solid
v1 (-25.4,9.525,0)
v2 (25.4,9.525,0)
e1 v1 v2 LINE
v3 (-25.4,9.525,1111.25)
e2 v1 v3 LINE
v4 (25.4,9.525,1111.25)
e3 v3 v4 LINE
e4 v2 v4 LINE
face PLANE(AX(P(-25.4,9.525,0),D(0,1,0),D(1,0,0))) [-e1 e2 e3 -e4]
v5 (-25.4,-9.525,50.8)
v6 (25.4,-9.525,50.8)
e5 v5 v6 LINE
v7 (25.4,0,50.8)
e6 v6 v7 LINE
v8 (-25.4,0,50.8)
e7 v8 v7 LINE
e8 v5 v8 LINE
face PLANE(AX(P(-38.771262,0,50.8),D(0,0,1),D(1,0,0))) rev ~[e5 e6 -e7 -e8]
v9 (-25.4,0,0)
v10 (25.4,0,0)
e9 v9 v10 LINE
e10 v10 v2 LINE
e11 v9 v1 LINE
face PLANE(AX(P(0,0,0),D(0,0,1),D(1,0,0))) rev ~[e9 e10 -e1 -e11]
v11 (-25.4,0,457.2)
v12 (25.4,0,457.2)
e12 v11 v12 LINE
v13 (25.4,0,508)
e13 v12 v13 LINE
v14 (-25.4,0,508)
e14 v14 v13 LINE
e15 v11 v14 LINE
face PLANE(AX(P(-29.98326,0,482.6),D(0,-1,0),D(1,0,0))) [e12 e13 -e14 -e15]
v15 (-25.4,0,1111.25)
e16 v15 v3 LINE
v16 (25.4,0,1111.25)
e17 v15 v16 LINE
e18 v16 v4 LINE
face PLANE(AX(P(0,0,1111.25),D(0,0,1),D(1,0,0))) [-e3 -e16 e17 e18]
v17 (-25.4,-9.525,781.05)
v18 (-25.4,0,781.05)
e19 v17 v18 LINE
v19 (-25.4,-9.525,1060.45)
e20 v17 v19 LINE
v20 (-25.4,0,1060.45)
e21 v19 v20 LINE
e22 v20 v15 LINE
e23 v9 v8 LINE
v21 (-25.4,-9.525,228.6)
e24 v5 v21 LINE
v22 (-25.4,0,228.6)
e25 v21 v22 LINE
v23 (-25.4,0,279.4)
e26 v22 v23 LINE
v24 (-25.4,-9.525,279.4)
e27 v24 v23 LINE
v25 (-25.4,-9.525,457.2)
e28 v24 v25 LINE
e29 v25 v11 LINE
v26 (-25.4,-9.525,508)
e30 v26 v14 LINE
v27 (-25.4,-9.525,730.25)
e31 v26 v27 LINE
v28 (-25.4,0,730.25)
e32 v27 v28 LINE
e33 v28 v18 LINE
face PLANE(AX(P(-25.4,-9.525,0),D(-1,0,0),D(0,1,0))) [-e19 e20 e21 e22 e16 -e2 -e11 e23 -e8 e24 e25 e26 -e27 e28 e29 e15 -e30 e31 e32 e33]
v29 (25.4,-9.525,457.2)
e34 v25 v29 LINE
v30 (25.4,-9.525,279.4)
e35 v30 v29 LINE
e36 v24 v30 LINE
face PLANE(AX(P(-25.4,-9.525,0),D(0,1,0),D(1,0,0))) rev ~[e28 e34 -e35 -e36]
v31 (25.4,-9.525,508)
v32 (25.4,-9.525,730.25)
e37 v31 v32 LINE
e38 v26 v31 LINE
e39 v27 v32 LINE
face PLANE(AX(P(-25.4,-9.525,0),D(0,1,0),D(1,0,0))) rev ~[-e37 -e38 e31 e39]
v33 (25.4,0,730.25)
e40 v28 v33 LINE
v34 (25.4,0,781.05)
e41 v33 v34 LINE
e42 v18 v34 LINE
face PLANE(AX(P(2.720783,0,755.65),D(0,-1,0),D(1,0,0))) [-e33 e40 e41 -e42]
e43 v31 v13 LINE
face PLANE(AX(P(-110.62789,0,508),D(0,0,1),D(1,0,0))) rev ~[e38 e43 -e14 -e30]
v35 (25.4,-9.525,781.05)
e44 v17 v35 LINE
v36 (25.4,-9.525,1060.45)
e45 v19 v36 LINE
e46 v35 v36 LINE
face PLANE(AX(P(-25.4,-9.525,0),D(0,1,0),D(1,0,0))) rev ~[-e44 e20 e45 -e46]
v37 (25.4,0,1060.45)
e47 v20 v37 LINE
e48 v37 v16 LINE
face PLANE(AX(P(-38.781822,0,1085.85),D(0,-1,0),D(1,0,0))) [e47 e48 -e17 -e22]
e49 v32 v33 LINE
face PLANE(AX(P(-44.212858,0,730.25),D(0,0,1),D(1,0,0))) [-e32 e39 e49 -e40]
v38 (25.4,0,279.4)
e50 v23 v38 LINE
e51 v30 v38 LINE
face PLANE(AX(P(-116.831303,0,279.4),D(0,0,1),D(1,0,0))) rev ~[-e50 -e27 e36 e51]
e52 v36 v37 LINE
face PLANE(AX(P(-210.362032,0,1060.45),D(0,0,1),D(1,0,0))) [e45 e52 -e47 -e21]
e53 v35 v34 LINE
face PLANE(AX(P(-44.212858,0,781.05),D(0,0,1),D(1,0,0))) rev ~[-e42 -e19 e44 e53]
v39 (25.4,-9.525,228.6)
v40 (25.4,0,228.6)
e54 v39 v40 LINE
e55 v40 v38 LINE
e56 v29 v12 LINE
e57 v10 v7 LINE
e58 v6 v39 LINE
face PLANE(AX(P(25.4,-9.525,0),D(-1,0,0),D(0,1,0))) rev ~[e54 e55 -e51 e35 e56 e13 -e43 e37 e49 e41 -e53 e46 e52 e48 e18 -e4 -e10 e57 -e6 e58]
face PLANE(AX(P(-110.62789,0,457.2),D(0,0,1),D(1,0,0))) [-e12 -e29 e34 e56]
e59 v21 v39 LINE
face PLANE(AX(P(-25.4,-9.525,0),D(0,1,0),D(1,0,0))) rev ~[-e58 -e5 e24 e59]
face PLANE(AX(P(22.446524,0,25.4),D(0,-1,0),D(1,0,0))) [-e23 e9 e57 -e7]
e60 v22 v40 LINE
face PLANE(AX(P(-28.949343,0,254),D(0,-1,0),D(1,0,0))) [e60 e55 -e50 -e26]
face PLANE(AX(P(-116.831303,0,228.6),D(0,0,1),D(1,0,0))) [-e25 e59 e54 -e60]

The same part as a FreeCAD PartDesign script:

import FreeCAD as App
import Part
import Sketcher
Q = App.Units.Quantity

doc = App.newDocument("Part")
body = doc.addObject("PartDesign::Body", "Body")

# Sketch on XY plane
sketch1 = doc.addObject("Sketcher::SketchObject", "Sketch")
body.addObject(sketch1)
sketch1.AttachmentSupport = (doc.XY_Plane, [""])
sketch1.MapMode = "FlatFace"
sketch1.addGeometry(Part.LineSegment(App.Vector(-25.4, 9.525, 0), App.Vector(-25.4, -9.525, 0)), False)
sketch1.addGeometry(Part.LineSegment(App.Vector(-25.4, -9.525, 0), App.Vector(25.4, -9.525, 0)), False)
sketch1.addGeometry(Part.LineSegment(App.Vector(25.4, -9.525, 0), App.Vector(25.4, 9.525, 0)), False)
sketch1.addGeometry(Part.LineSegment(App.Vector(25.4, 9.525, 0), App.Vector(-25.4, 9.525, 0)), False)
sketch1.addConstraint(Sketcher.Constraint("Coincident", 0, 2, 1, 1))
sketch1.addConstraint(Sketcher.Constraint("Coincident", 1, 2, 2, 1))
sketch1.addConstraint(Sketcher.Constraint("Coincident", 2, 2, 3, 1))
sketch1.addConstraint(Sketcher.Constraint("Coincident", 3, 2, 0, 1))
sketch1.addConstraint(Sketcher.Constraint("Vertical", 0))
sketch1.addConstraint(Sketcher.Constraint("Horizontal", 1))
sketch1.addConstraint(Sketcher.Constraint("Vertical", 2))
sketch1.addConstraint(Sketcher.Constraint("Horizontal", 3))
sketch1.addConstraint(Sketcher.Constraint("Symmetric", 0, 2, 2, 2, -1, 1))
sketch1.addConstraint(Sketcher.Constraint("DistanceX", 1, 1, 1, 2, Q("2 in")))
sketch1.addConstraint(Sketcher.Constraint("DistanceY", 0, 2, 0, 1, Q("0.75 in")))
pad1 = doc.addObject("PartDesign::Pad", "Pad")
body.addObject(pad1)
pad1.Profile = sketch1
pad1.Length = Q("43.75 in")

# Sketch on XZ plane
sketch2 = doc.addObject("Sketcher::SketchObject", "Sketch001")
body.addObject(sketch2)
sketch2.AttachmentSupport = (doc.XZ_Plane, [""])
sketch2.MapMode = "FlatFace"
sketch2.addGeometry(Part.LineSegment(App.Vector(-38.771262, 50.8, 0), App.Vector(-38.771262, 0, 0)), False)
sketch2.addGeometry(Part.LineSegment(App.Vector(-38.771262, 0, 0), App.Vector(83.66431, 0, 0)), False)
sketch2.addGeometry(Part.LineSegment(App.Vector(83.66431, 0, 0), App.Vector(83.66431, 50.8, 0)), False)
sketch2.addGeometry(Part.LineSegment(App.Vector(83.66431, 50.8, 0), App.Vector(-38.771262, 50.8, 0)), False)
sketch2.addGeometry(Part.LineSegment(App.Vector(-44.212858, 781.05, 0), App.Vector(-44.212858, 730.25, 0)), False)
sketch2.addGeometry(Part.LineSegment(App.Vector(-44.212858, 730.25, 0), App.Vector(49.654424, 730.25, 0)), False)
sketch2.addGeometry(Part.LineSegment(App.Vector(49.654424, 730.25, 0), App.Vector(49.654424, 781.05, 0)), False)
sketch2.addGeometry(Part.LineSegment(App.Vector(49.654424, 781.05, 0), App.Vector(-44.212858, 781.05, 0)), False)
sketch2.addGeometry(Part.LineSegment(App.Vector(-210.362032, 1111.25, 0), App.Vector(-210.362032, 1060.45, 0)), False)
sketch2.addGeometry(Part.LineSegment(App.Vector(-210.362032, 1060.45, 0), App.Vector(132.798388, 1060.45, 0)), False)
sketch2.addGeometry(Part.LineSegment(App.Vector(132.798388, 1060.45, 0), App.Vector(132.798388, 1111.25, 0)), False)
sketch2.addGeometry(Part.LineSegment(App.Vector(132.798388, 1111.25, 0), App.Vector(-210.362032, 1111.25, 0)), False)
sketch2.addGeometry(Part.LineSegment(App.Vector(-116.831303, 279.4, 0), App.Vector(-116.831303, 228.6, 0)), False)
sketch2.addGeometry(Part.LineSegment(App.Vector(-116.831303, 228.6, 0), App.Vector(58.932617, 228.6, 0)), False)
sketch2.addGeometry(Part.LineSegment(App.Vector(58.932617, 228.6, 0), App.Vector(58.932617, 279.4, 0)), False)
sketch2.addGeometry(Part.LineSegment(App.Vector(58.932617, 279.4, 0), App.Vector(-116.831303, 279.4, 0)), False)
sketch2.addGeometry(Part.LineSegment(App.Vector(-110.62789, 508, 0), App.Vector(-110.62789, 457.2, 0)), False)
sketch2.addGeometry(Part.LineSegment(App.Vector(-110.62789, 457.2, 0), App.Vector(50.66137, 457.2, 0)), False)
sketch2.addGeometry(Part.LineSegment(App.Vector(50.66137, 457.2, 0), App.Vector(50.66137, 508, 0)), False)
sketch2.addGeometry(Part.LineSegment(App.Vector(50.66137, 508, 0), App.Vector(-110.62789, 508, 0)), False)
sketch2.addConstraint(Sketcher.Constraint("Coincident", 0, 2, 1, 1))
sketch2.addConstraint(Sketcher.Constraint("Coincident", 1, 2, 2, 1))
sketch2.addConstraint(Sketcher.Constraint("Coincident", 2, 2, 3, 1))
sketch2.addConstraint(Sketcher.Constraint("Coincident", 3, 2, 0, 1))
sketch2.addConstraint(Sketcher.Constraint("Coincident", 4, 2, 5, 1))
sketch2.addConstraint(Sketcher.Constraint("Coincident", 5, 2, 6, 1))
sketch2.addConstraint(Sketcher.Constraint("Coincident", 6, 2, 7, 1))
sketch2.addConstraint(Sketcher.Constraint("Coincident", 7, 2, 4, 1))
sketch2.addConstraint(Sketcher.Constraint("Coincident", 8, 2, 9, 1))
sketch2.addConstraint(Sketcher.Constraint("Coincident", 9, 2, 10, 1))
sketch2.addConstraint(Sketcher.Constraint("Coincident", 10, 2, 11, 1))
sketch2.addConstraint(Sketcher.Constraint("Coincident", 11, 2, 8, 1))
sketch2.addConstraint(Sketcher.Constraint("Coincident", 12, 2, 13, 1))
sketch2.addConstraint(Sketcher.Constraint("Coincident", 13, 2, 14, 1))
sketch2.addConstraint(Sketcher.Constraint("Coincident", 14, 2, 15, 1))
sketch2.addConstraint(Sketcher.Constraint("Coincident", 15, 2, 12, 1))
sketch2.addConstraint(Sketcher.Constraint("Coincident", 16, 2, 17, 1))
sketch2.addConstraint(Sketcher.Constraint("Coincident", 17, 2, 18, 1))
sketch2.addConstraint(Sketcher.Constraint("Coincident", 18, 2, 19, 1))
sketch2.addConstraint(Sketcher.Constraint("Coincident", 19, 2, 16, 1))
sketch2.addConstraint(Sketcher.Constraint("Vertical", 0))
sketch2.addConstraint(Sketcher.Constraint("Horizontal", 1))
sketch2.addConstraint(Sketcher.Constraint("Vertical", 2))
sketch2.addConstraint(Sketcher.Constraint("Horizontal", 3))
sketch2.addConstraint(Sketcher.Constraint("Vertical", 4))
sketch2.addConstraint(Sketcher.Constraint("Horizontal", 5))
sketch2.addConstraint(Sketcher.Constraint("Vertical", 6))
sketch2.addConstraint(Sketcher.Constraint("Horizontal", 7))
sketch2.addConstraint(Sketcher.Constraint("Vertical", 8))
sketch2.addConstraint(Sketcher.Constraint("Horizontal", 9))
sketch2.addConstraint(Sketcher.Constraint("Vertical", 10))
sketch2.addConstraint(Sketcher.Constraint("Horizontal", 11))
sketch2.addConstraint(Sketcher.Constraint("Vertical", 12))
sketch2.addConstraint(Sketcher.Constraint("Horizontal", 13))
sketch2.addConstraint(Sketcher.Constraint("Vertical", 14))
sketch2.addConstraint(Sketcher.Constraint("Horizontal", 15))
sketch2.addConstraint(Sketcher.Constraint("Vertical", 16))
sketch2.addConstraint(Sketcher.Constraint("Horizontal", 17))
sketch2.addConstraint(Sketcher.Constraint("Vertical", 18))
sketch2.addConstraint(Sketcher.Constraint("Horizontal", 19))
sketch2.addConstraint(Sketcher.Constraint("PointOnObject", 0, 2, -1))
sketch2.addConstraint(Sketcher.Constraint("Equal", 2, 4))
sketch2.addConstraint(Sketcher.Constraint("Equal", 6, 8))
sketch2.addConstraint(Sketcher.Constraint("Equal", 10, 12))
sketch2.addConstraint(Sketcher.Constraint("Equal", 14, 16))
sketch2.addConstraint(Sketcher.Constraint("DistanceY", 0, 2, 0, 1, Q("2 in")))
sketch2.addConstraint(Sketcher.Constraint("DistanceY", -1, 1, 12, 2, Q("9 in")))
sketch2.addConstraint(Sketcher.Constraint("DistanceY", -1, 1, 16, 2, Q("18 in")))
sketch2.addConstraint(Sketcher.Constraint("DistanceY", 7, 2, 8, 2, Q("11 in")))
sketch2.addConstraint(Sketcher.Constraint("DistanceY", -1, 1, 4, 2, Q("28.75 in")))
sketch2.addConstraint(Sketcher.Constraint("DistanceX", 5, 1, 5, 2, 93.867282))
sketch2.addConstraint(Sketcher.Constraint("DistanceX", 9, 1, 9, 2, 343.160421))
sketch2.addConstraint(Sketcher.Constraint("DistanceX", 13, 1, 13, 2, 175.76392))
sketch2.addConstraint(Sketcher.Constraint("DistanceX", 17, 1, 17, 2, 161.28926))
sketch2.addConstraint(Sketcher.Constraint("DistanceX", 1, 1, 1, 2, 122.435573))
sketch2.addConstraint(Sketcher.Constraint("DistanceX", -1, 1, 1, 2, 83.66431))
sketch2.addConstraint(Sketcher.Constraint("DistanceX", -1, 1, 9, 2, 132.798388))
sketch2.addConstraint(Sketcher.Constraint("DistanceX", 16, 2, -1, 1, 110.62789))
sketch2.addConstraint(Sketcher.Constraint("DistanceX", 4, 2, 2, 2, 127.877168))
sketch2.addConstraint(Sketcher.Constraint("DistanceX", 12, 2, 3, 2, 78.060041))
pocket1 = doc.addObject("PartDesign::Pocket", "Pocket")
body.addObject(pocket1)
pocket1.Profile = sketch2
pocket1.Length = Q("1 in")
pocket1.Reversed = True

# Sketch on XZ plane
sketch3 = doc.addObject("Sketcher::SketchObject", "Sketch002")
body.addObject(sketch3)
sketch3.AttachmentSupport = (doc.XZ_Plane, [""])
sketch3.MapMode = "FlatFace"
sketch3.addGeometry(Part.Circle(App.Vector(15.875, 254, 0), App.Vector(0, 0, 1), 4.7625), False)
sketch3.addGeometry(Part.Circle(App.Vector(15.875, 482.6, 0), App.Vector(0, 0, 1), 4.7625), False)
sketch3.addConstraint(Sketcher.Constraint("Equal", 0, 1))
sketch3.addConstraint(Sketcher.Constraint("Vertical", 0, 3, 1, 3))
sketch3.addConstraint(Sketcher.Constraint("Diameter", 0, Q("0.375 in")))
sketch3.addConstraint(Sketcher.Constraint("DistanceY", -1, 1, 0, 3, Q("10 in")))
sketch3.addConstraint(Sketcher.Constraint("DistanceY", -1, 1, 1, 3, Q("19 in")))
sketch3.addConstraint(Sketcher.Constraint("DistanceX", -1, 1, 0, 3, Q("0.625 in")))
pocket2 = doc.addObject("PartDesign::Pocket", "Pocket001")
body.addObject(pocket2)
pocket2.Profile = sketch3
pocket2.Length = Q("1 in")
pocket2.Reversed = True

doc.recompute()
